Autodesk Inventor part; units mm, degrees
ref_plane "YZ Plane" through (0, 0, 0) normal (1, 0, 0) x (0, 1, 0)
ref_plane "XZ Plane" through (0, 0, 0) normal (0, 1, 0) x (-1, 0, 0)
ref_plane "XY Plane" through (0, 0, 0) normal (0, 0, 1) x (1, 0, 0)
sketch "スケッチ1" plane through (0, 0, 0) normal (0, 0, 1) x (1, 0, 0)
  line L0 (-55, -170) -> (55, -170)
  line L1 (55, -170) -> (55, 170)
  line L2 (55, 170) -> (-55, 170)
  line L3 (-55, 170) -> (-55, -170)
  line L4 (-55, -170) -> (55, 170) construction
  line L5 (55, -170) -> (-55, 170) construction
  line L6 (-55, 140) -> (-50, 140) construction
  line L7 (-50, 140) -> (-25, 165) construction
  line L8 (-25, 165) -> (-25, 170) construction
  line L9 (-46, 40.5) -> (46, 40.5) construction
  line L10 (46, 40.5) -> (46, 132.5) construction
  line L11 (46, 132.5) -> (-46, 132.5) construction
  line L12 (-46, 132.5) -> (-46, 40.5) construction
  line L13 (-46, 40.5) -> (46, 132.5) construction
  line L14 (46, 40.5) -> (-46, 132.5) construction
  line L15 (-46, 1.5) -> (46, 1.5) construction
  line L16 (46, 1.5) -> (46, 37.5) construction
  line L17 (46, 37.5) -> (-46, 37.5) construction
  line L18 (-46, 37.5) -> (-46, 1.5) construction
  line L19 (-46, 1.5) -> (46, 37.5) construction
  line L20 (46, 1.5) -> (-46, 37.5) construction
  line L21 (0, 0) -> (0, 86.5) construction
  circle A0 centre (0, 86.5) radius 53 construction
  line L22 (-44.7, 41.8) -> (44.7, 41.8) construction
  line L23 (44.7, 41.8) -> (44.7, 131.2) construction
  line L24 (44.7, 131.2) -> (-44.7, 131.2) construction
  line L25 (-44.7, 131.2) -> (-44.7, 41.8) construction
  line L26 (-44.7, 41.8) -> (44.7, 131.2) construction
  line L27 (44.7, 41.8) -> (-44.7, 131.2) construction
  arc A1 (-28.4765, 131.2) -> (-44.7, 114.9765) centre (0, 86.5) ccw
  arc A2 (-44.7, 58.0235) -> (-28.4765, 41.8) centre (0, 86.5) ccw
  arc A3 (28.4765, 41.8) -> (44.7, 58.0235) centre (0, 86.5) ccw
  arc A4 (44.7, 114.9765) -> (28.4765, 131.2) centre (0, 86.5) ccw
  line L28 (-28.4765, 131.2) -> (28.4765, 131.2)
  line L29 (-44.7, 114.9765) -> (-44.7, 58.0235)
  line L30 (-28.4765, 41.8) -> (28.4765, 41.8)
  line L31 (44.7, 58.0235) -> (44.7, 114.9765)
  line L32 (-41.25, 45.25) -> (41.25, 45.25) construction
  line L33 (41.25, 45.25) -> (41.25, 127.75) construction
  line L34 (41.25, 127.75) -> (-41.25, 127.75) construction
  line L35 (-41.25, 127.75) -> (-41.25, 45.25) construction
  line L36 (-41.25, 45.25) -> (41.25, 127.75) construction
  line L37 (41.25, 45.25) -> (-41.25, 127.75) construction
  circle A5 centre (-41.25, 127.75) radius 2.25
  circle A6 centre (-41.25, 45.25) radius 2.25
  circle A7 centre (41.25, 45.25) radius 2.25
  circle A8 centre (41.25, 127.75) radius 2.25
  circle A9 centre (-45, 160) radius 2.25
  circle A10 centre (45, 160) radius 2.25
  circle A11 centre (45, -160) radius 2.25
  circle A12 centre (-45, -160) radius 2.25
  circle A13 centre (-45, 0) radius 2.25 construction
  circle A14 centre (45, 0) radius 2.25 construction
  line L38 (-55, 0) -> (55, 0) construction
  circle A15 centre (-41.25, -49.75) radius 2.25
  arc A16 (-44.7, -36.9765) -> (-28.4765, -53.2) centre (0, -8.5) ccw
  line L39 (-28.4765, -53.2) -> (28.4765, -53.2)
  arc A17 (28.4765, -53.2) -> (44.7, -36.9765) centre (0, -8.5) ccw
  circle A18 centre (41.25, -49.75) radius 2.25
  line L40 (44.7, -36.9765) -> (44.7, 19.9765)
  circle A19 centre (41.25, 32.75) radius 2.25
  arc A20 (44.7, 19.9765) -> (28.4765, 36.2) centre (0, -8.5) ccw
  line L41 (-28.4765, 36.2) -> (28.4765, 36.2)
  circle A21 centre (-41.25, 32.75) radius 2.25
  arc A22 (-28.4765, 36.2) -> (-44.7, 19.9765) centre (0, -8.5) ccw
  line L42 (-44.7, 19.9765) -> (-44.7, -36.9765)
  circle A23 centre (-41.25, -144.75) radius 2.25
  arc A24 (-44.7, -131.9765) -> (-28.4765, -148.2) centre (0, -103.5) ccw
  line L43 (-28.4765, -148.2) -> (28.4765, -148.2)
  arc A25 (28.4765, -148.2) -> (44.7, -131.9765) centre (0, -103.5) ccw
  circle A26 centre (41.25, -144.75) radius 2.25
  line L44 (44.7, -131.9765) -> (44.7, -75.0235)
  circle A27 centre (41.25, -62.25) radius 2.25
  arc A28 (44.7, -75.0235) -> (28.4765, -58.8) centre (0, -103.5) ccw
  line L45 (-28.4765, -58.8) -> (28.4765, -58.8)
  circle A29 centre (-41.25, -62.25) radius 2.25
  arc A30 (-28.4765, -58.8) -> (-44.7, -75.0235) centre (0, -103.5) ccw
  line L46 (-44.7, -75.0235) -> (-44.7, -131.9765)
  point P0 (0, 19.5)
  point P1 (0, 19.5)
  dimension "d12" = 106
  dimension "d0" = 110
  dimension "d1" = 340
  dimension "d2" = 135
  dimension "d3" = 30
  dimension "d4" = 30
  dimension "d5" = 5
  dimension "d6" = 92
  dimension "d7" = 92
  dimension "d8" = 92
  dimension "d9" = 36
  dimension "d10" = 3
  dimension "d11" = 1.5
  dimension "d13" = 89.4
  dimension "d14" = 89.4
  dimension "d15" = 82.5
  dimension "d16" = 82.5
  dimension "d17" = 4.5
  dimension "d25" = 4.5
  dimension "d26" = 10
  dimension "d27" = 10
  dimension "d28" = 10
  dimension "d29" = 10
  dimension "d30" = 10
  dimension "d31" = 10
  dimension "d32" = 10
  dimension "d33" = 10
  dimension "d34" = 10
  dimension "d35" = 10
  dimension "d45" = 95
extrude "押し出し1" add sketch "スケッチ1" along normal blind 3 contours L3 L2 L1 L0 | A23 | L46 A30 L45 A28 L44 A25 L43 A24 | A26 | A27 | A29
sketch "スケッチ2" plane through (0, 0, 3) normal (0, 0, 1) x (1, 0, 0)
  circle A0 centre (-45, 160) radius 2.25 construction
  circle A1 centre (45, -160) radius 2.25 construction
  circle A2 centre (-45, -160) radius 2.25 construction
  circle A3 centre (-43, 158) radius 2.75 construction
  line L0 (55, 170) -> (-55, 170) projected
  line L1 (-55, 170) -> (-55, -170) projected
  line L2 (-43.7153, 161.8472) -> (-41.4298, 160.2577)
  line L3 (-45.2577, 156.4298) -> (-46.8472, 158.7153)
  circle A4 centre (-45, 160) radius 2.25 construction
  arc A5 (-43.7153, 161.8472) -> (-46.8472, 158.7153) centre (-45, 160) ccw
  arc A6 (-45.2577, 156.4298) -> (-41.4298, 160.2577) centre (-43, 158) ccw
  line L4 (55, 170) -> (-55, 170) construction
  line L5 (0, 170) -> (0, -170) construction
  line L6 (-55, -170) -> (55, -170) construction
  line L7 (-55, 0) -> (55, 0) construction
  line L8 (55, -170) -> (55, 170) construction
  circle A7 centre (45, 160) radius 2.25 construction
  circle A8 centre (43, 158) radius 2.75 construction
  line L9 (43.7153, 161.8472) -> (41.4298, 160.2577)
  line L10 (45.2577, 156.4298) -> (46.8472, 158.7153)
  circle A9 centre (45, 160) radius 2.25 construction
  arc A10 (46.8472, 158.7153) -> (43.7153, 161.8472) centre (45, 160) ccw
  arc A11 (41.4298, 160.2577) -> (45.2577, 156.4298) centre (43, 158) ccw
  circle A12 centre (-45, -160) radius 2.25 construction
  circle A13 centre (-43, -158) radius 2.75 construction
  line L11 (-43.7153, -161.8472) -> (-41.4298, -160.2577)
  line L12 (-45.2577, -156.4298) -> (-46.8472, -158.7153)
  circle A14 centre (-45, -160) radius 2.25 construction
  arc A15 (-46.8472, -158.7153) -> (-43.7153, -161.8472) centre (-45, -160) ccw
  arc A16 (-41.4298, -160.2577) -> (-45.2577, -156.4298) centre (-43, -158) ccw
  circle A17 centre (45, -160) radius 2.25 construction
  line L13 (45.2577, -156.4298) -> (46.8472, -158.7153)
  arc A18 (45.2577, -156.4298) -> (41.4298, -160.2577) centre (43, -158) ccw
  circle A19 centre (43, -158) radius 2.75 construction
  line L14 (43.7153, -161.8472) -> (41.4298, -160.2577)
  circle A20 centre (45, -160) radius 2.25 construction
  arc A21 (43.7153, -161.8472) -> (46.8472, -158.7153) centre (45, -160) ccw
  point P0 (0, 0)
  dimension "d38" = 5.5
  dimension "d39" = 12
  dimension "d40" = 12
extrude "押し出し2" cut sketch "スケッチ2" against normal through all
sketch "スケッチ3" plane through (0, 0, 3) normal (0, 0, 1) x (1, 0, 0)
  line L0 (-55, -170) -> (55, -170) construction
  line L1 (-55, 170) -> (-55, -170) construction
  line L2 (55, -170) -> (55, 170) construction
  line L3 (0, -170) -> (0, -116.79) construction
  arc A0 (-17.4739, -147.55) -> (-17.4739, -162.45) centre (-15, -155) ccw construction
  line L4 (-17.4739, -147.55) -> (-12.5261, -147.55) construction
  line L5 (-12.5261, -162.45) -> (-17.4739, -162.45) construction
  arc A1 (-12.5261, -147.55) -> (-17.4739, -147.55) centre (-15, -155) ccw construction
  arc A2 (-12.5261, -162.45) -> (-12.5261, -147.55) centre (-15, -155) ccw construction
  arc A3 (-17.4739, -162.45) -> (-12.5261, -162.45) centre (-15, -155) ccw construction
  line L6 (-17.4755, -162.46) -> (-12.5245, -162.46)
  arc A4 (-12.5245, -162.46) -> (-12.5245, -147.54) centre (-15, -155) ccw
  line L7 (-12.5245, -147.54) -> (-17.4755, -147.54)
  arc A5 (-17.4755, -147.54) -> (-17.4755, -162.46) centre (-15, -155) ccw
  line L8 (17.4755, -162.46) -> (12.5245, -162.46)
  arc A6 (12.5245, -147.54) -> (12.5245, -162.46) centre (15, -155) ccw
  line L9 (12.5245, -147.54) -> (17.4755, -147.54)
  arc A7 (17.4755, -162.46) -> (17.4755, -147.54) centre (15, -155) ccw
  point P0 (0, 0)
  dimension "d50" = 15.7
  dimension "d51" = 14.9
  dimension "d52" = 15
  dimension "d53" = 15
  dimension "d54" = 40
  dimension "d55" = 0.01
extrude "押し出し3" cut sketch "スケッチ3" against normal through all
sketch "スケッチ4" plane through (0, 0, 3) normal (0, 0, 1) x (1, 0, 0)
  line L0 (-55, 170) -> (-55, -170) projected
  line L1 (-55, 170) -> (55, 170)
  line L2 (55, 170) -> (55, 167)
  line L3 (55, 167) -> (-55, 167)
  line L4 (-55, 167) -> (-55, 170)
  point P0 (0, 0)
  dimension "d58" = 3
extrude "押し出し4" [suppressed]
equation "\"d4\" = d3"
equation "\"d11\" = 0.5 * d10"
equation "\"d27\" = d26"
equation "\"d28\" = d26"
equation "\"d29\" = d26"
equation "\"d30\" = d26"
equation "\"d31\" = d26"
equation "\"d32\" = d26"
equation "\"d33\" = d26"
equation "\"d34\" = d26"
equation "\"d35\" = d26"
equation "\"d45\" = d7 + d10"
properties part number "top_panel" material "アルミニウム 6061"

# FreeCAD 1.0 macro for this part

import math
import FreeCAD as App
import Part
import Sketcher
from FreeCAD import Vector


def add_polygon(sketch, points):
    """Adds a closed chain of lines whose ends are joined by coincident constraints."""
    first, n = sketch.GeometryCount, len(points)
    for a, b in zip(points, points[1:] + points[:1]):
        sketch.addGeometry(Part.LineSegment(App.Vector(*a, 0), App.Vector(*b, 0)), False)
    for i in range(n):
        sketch.addConstraint(Sketcher.Constraint("Coincident", first + i, 2, first + (i + 1) % n, 1))

doc = App.newDocument("Part")
body = doc.addObject("PartDesign::Body", "Body")

# Sketch on XY plane
sketch1 = body.newObject("Sketcher::SketchObject", "Sketch")
sketch1.AttachmentSupport = (doc.getObject("XY_Plane"), [""])
sketch1.MapMode = "FlatFace"
add_polygon(sketch1, [(-55, 170), (-55, -170), (55, -170), (55, 170)])  # lines 0-3
sketch1.addGeometry(Part.Circle(Vector(-45, -160, 0), Vector(0, 0, 1), 2.25), False)  # 4
sketch1.addGeometry(Part.Circle(Vector(-41.25, -49.75, 0), Vector(0, 0, 1), 2.25), False)  # 5
sketch1.addGeometry(Part.Circle(Vector(45, -160, 0), Vector(0, 0, 1), 2.25), False)  # 6
sketch1.addGeometry(Part.ArcOfCircle(Part.Circle(Vector(0, -8.5, 0), Vector(0, 0, 1), 53.00001), math.radians(-147.500493), math.radians(-122.499507)), False)  # 7
sketch1.addGeometry(Part.LineSegment(Vector(-44.7, -36.9765, 0), Vector(-44.7, 19.9765, 0)), False)  # 8
sketch1.addGeometry(Part.ArcOfCircle(Part.Circle(Vector(0, -8.5, 0), Vector(0, 0, 1), 53.00001), math.radians(122.499507), math.radians(147.500493)), False)  # 9
sketch1.addGeometry(Part.LineSegment(Vector(-28.4765, 36.2, 0), Vector(28.4765, 36.2, 0)), False)  # 10
sketch1.addGeometry(Part.ArcOfCircle(Part.Circle(Vector(0, -8.5, 0), Vector(0, 0, 1), 53.00001), math.radians(32.499507), math.radians(57.500493)), False)  # 11
sketch1.addGeometry(Part.LineSegment(Vector(44.7, 19.9765, 0), Vector(44.7, -36.9765, 0)), False)  # 12
sketch1.addGeometry(Part.ArcOfCircle(Part.Circle(Vector(0, -8.5, 0), Vector(0, 0, 1), 53.00001), math.radians(-57.500493), math.radians(-32.499507)), False)  # 13
sketch1.addGeometry(Part.LineSegment(Vector(28.4765, -53.2, 0), Vector(-28.4765, -53.2, 0)), False)  # 14
sketch1.addGeometry(Part.Circle(Vector(41.25, -49.75, 0), Vector(0, 0, 1), 2.25), False)  # 15
sketch1.addGeometry(Part.Circle(Vector(-41.25, 32.75, 0), Vector(0, 0, 1), 2.25), False)  # 16
sketch1.addGeometry(Part.Circle(Vector(-41.25, 45.25, 0), Vector(0, 0, 1), 2.25), False)  # 17
sketch1.addGeometry(Part.Circle(Vector(-45, 160, 0), Vector(0, 0, 1), 2.25), False)  # 18
sketch1.addGeometry(Part.Circle(Vector(-41.25, 127.75, 0), Vector(0, 0, 1), 2.25), False)  # 19
sketch1.addGeometry(Part.Circle(Vector(41.25, 32.75, 0), Vector(0, 0, 1), 2.25), False)  # 20
sketch1.addGeometry(Part.Circle(Vector(41.25, 45.25, 0), Vector(0, 0, 1), 2.25), False)  # 21
sketch1.addGeometry(Part.ArcOfCircle(Part.Circle(Vector(0, 86.5, 0), Vector(0, 0, 1), 53.00001), math.radians(122.499507), math.radians(147.500493)), False)  # 22
sketch1.addGeometry(Part.LineSegment(Vector(-28.4765, 131.2, 0), Vector(28.4765, 131.2, 0)), False)  # 23
sketch1.addGeometry(Part.ArcOfCircle(Part.Circle(Vector(0, 86.5, 0), Vector(0, 0, 1), 53.00001), math.radians(32.499507), math.radians(57.500493)), False)  # 24
sketch1.addGeometry(Part.LineSegment(Vector(44.7, 114.9765, 0), Vector(44.7, 58.0235, 0)), False)  # 25
sketch1.addGeometry(Part.ArcOfCircle(Part.Circle(Vector(0, 86.5, 0), Vector(0, 0, 1), 53.00001), math.radians(-57.500493), math.radians(-32.499507)), False)  # 26
sketch1.addGeometry(Part.LineSegment(Vector(28.4765, 41.8, 0), Vector(-28.4765, 41.8, 0)), False)  # 27
sketch1.addGeometry(Part.ArcOfCircle(Part.Circle(Vector(0, 86.5, 0), Vector(0, 0, 1), 53.00001), math.radians(-147.500493), math.radians(-122.499507)), False)  # 28
sketch1.addGeometry(Part.LineSegment(Vector(-44.7, 58.0235, 0), Vector(-44.7, 114.9765, 0)), False)  # 29
sketch1.addGeometry(Part.Circle(Vector(41.25, 127.75, 0), Vector(0, 0, 1), 2.25), False)  # 30
sketch1.addGeometry(Part.Circle(Vector(45, 160, 0), Vector(0, 0, 1), 2.25), False)  # 31
sketch1.addConstraint(Sketcher.Constraint("Coincident", 7, 1, 8, 1))
sketch1.addConstraint(Sketcher.Constraint("Coincident", 8, 2, 9, 2))
sketch1.addConstraint(Sketcher.Constraint("Coincident", 9, 1, 10, 1))
sketch1.addConstraint(Sketcher.Constraint("Coincident", 10, 2, 11, 2))
sketch1.addConstraint(Sketcher.Constraint("Coincident", 11, 1, 12, 1))
sketch1.addConstraint(Sketcher.Constraint("Coincident", 12, 2, 13, 2))
sketch1.addConstraint(Sketcher.Constraint("Coincident", 13, 1, 14, 1))
sketch1.addConstraint(Sketcher.Constraint("Coincident", 14, 2, 7, 2))
sketch1.addConstraint(Sketcher.Constraint("Coincident", 22, 1, 23, 1))
sketch1.addConstraint(Sketcher.Constraint("Coincident", 23, 2, 24, 2))
sketch1.addConstraint(Sketcher.Constraint("Coincident", 24, 1, 25, 1))
sketch1.addConstraint(Sketcher.Constraint("Coincident", 25, 2, 26, 2))
sketch1.addConstraint(Sketcher.Constraint("Coincident", 26, 1, 27, 1))
sketch1.addConstraint(Sketcher.Constraint("Coincident", 27, 2, 28, 2))
sketch1.addConstraint(Sketcher.Constraint("Coincident", 28, 1, 29, 1))
sketch1.addConstraint(Sketcher.Constraint("Coincident", 29, 2, 22, 2))
sketch1.addConstraint(Sketcher.Constraint("Vertical", 0))
sketch1.addConstraint(Sketcher.Constraint("Horizontal", 1))
sketch1.addConstraint(Sketcher.Constraint("Vertical", 2))
sketch1.addConstraint(Sketcher.Constraint("Horizontal", 3))
sketch1.addConstraint(Sketcher.Constraint("Vertical", 8))
sketch1.addConstraint(Sketcher.Constraint("Horizontal", 10))
sketch1.addConstraint(Sketcher.Constraint("Vertical", 12))
sketch1.addConstraint(Sketcher.Constraint("Horizontal", 14))
sketch1.addConstraint(Sketcher.Constraint("Horizontal", 23))
sketch1.addConstraint(Sketcher.Constraint("Vertical", 25))
sketch1.addConstraint(Sketcher.Constraint("Horizontal", 27))
sketch1.addConstraint(Sketcher.Constraint("Vertical", 29))
sketch1.addConstraint(Sketcher.Constraint("Coincident", 9, 3, 7, 3))
sketch1.addConstraint(Sketcher.Constraint("Coincident", 11, 3, 7, 3))
sketch1.addConstraint(Sketcher.Constraint("Coincident", 13, 3, 7, 3))
sketch1.addConstraint(Sketcher.Constraint("Coincident", 24, 3, 22, 3))
sketch1.addConstraint(Sketcher.Constraint("Coincident", 26, 3, 22, 3))
sketch1.addConstraint(Sketcher.Constraint("Coincident", 28, 3, 22, 3))
sketch1.addConstraint(Sketcher.Constraint("Equal", 4, 5))
sketch1.addConstraint(Sketcher.Constraint("Equal", 5, 6))
sketch1.addConstraint(Sketcher.Constraint("Equal", 7, 9))
sketch1.addConstraint(Sketcher.Constraint("Equal", 9, 11))
sketch1.addConstraint(Sketcher.Constraint("Equal", 11, 13))
sketch1.addConstraint(Sketcher.Constraint("Equal", 6, 15))
sketch1.addConstraint(Sketcher.Constraint("Equal", 15, 16))
sketch1.addConstraint(Sketcher.Constraint("Equal", 16, 17))
sketch1.addConstraint(Sketcher.Constraint("Equal", 17, 18))
sketch1.addConstraint(Sketcher.Constraint("Equal", 18, 19))
sketch1.addConstraint(Sketcher.Constraint("Equal", 19, 20))
sketch1.addConstraint(Sketcher.Constraint("Equal", 20, 21))
sketch1.addConstraint(Sketcher.Constraint("Equal", 13, 22))
sketch1.addConstraint(Sketcher.Constraint("Equal", 22, 24))
sketch1.addConstraint(Sketcher.Constraint("Equal", 24, 26))
sketch1.addConstraint(Sketcher.Constraint("Equal", 26, 28))
sketch1.addConstraint(Sketcher.Constraint("Equal", 21, 30))
sketch1.addConstraint(Sketcher.Constraint("Equal", 30, 31))
sketch1.addConstraint(Sketcher.Constraint("Symmetric", 6, 3, 18, 3, -1, 1))
sketch1.addConstraint(Sketcher.Constraint("Symmetric", 4, 3, 31, 3, -1, 1))
sketch1.addConstraint(Sketcher.Constraint("Symmetric", 0, 2, 2, 2, -1, 1))
sketch1.addConstraint(Sketcher.Constraint("Symmetric", 4, 3, 6, 3, -2))
sketch1.addConstraint(Sketcher.Constraint("Symmetric", 5, 3, 15, 3, -2))
sketch1.addConstraint(Sketcher.Constraint("Symmetric", 16, 3, 20, 3, -2))
sketch1.addConstraint(Sketcher.Constraint("Symmetric", 17, 3, 21, 3, -2))
sketch1.addConstraint(Sketcher.Constraint("Symmetric", 19, 3, 30, 3, -2))
sketch1.addConstraint(Sketcher.Constraint("Symmetric", 8, 2, 11, 1, -2))
sketch1.addConstraint(Sketcher.Constraint("Symmetric", 25, 2, 28, 1, -2))
sketch1.addConstraint(Sketcher.Constraint("Vertical", 5, 3, 16, 3))
sketch1.addConstraint(Sketcher.Constraint("Vertical", 16, 3, 17, 3))
sketch1.addConstraint(Sketcher.Constraint("Vertical", 17, 3, 19, 3))
sketch1.addConstraint(Sketcher.Constraint("Vertical", 10, 2, 13, 1))
sketch1.addConstraint(Sketcher.Constraint("Vertical", 14, 2, 22, 1))
sketch1.addConstraint(Sketcher.Constraint("Vertical", 12, 2, 24, 1))
sketch1.addConstraint(Sketcher.Constraint("Vertical", 23, 2, 26, 1))
sketch1.addConstraint(Sketcher.Constraint("Equal", 27, 8))
sketch1.addConstraint(Sketcher.Constraint("Radius", 7, 53.0))
sketch1.addConstraint(Sketcher.Constraint("Diameter", 4, 4.5))
sketch1.addConstraint(Sketcher.Constraint("DistanceX", 1, 1, 1, 2, 110.0))
sketch1.addConstraint(Sketcher.Constraint("DistanceY", 0, 2, 0, 1, 340.0))
sketch1.addConstraint(Sketcher.Constraint("DistanceY", 16, 3, 19, 3, 95.0))
sketch1.addConstraint(Sketcher.Constraint("DistanceX", 0, 2, 4, 3, 10.0))
sketch1.addConstraint(Sketcher.Constraint("DistanceY", 0, 2, 4, 3, 10.0))
sketch1.addConstraint(Sketcher.Constraint("DistanceX", 5, 3, 15, 3, 82.5))
sketch1.addConstraint(Sketcher.Constraint("DistanceY", 5, 3, 16, 3, 82.5))
sketch1.addConstraint(Sketcher.Constraint("DistanceY", 17, 3, 19, 3, 82.5))
sketch1.addConstraint(Sketcher.Constraint("DistanceY", 7, 3, -1, 1, 8.5))
sketch1.addConstraint(Sketcher.Constraint("DistanceY", -1, 1, 22, 3, 86.5))
sketch1.addConstraint(Sketcher.Constraint("DistanceX", 7, 1, -1, 1, 44.7))
sketch1.addConstraint(Sketcher.Constraint("DistanceY", 5, 3, -1, 1, 49.75))
pad1 = body.newObject("PartDesign::Pad", "Pad")
pad1.Profile = sketch1
pad1.Length = 3

# Sketch on XY plane
sketch2 = body.newObject("Sketcher::SketchObject", "Sketch001")
sketch2.AttachmentSupport = (doc.getObject("XY_Plane"), [""])
sketch2.MapMode = "FlatFace"
sketch2.AttachmentOffset = App.Placement(Vector(0, 0, 3), App.Rotation())
sketch2.addGeometry(Part.LineSegment(Vector(-41.4298, 160.2577, 0), Vector(-43.7153, 161.8472, 0)), False)
sketch2.addGeometry(Part.ArcOfCircle(Part.Circle(Vector(-45, 160, 0), Vector(0, 0, 1), 2.250023), math.radians(55.181964), math.radians(214.818036)), False)
sketch2.addGeometry(Part.LineSegment(Vector(-46.8472, 158.7153, 0), Vector(-45.2577, 156.4298, 0)), False)
sketch2.addGeometry(Part.ArcOfCircle(Part.Circle(Vector(-43, 158, 0), Vector(0, 0, 1), 2.750043), math.radians(-145.181906), math.radians(55.181906)), False)
sketch2.addGeometry(Part.ArcOfCircle(Part.Circle(Vector(45, 160, 0), Vector(0, 0, 1), 2.250023), math.radians(-34.818036), math.radians(124.818036)), False)
sketch2.addGeometry(Part.LineSegment(Vector(43.7153, 161.8472, 0), Vector(41.4298, 160.2577, 0)), False)
sketch2.addGeometry(Part.ArcOfCircle(Part.Circle(Vector(43, 158, 0), Vector(0, 0, 1), 2.750043), math.radians(124.818094), math.radians(325.181906)), False)
sketch2.addGeometry(Part.LineSegment(Vector(45.2577, 156.4298, 0), Vector(46.8472, 158.7153, 0)), False)
sketch2.addGeometry(Part.ArcOfCircle(Part.Circle(Vector(-45, -160, 0), Vector(0, 0, 1), 2.250023), math.radians(145.181964), math.radians(304.818036)), False)
sketch2.addGeometry(Part.LineSegment(Vector(-43.7153, -161.8472, 0), Vector(-41.4298, -160.2577, 0)), False)
sketch2.addGeometry(Part.ArcOfCircle(Part.Circle(Vector(-43, -158, 0), Vector(0, 0, 1), 2.750043), math.radians(-55.181906), math.radians(145.181906)), False)
sketch2.addGeometry(Part.LineSegment(Vector(-45.2577, -156.4298, 0), Vector(-46.8472, -158.7153, 0)), False)
sketch2.addGeometry(Part.LineSegment(Vector(46.8472, -158.7153, 0), Vector(45.2577, -156.4298, 0)), False)
sketch2.addGeometry(Part.ArcOfCircle(Part.Circle(Vector(43, -158, 0), Vector(0, 0, 1), 2.750043), math.radians(34.818094), math.radians(235.181906)), False)
sketch2.addGeometry(Part.LineSegment(Vector(41.4298, -160.2577, 0), Vector(43.7153, -161.8472, 0)), False)
sketch2.addGeometry(Part.ArcOfCircle(Part.Circle(Vector(45, -160, 0), Vector(0, 0, 1), 2.250023), math.radians(-124.818036), math.radians(34.818036)), False)
sketch2.addConstraint(Sketcher.Constraint("Tangent", 0, 2, 1, 1))
sketch2.addConstraint(Sketcher.Constraint("Tangent", 1, 2, 2, 1))
sketch2.addConstraint(Sketcher.Constraint("Tangent", 2, 2, 3, 1))
sketch2.addConstraint(Sketcher.Constraint("Tangent", 3, 2, 0, 1))
sketch2.addConstraint(Sketcher.Constraint("Tangent", 4, 2, 5, 1))
sketch2.addConstraint(Sketcher.Constraint("Tangent", 5, 2, 6, 1))
sketch2.addConstraint(Sketcher.Constraint("Tangent", 6, 2, 7, 1))
sketch2.addConstraint(Sketcher.Constraint("Tangent", 7, 2, 4, 1))
sketch2.addConstraint(Sketcher.Constraint("Tangent", 8, 2, 9, 1))
sketch2.addConstraint(Sketcher.Constraint("Tangent", 9, 2, 10, 1))
sketch2.addConstraint(Sketcher.Constraint("Tangent", 10, 2, 11, 1))
sketch2.addConstraint(Sketcher.Constraint("Tangent", 11, 2, 8, 1))
sketch2.addConstraint(Sketcher.Constraint("Tangent", 12, 2, 13, 1))
sketch2.addConstraint(Sketcher.Constraint("Tangent", 13, 2, 14, 1))
sketch2.addConstraint(Sketcher.Constraint("Tangent", 14, 2, 15, 1))
sketch2.addConstraint(Sketcher.Constraint("Tangent", 15, 2, 12, 1))
sketch2.addConstraint(Sketcher.Constraint("Equal", 1, 4))
sketch2.addConstraint(Sketcher.Constraint("Equal", 3, 6))
sketch2.addConstraint(Sketcher.Constraint("Equal", 4, 8))
sketch2.addConstraint(Sketcher.Constraint("Equal", 6, 10))
sketch2.addConstraint(Sketcher.Constraint("Equal", 10, 13))
sketch2.addConstraint(Sketcher.Constraint("Equal", 8, 15))
sketch2.addConstraint(Sketcher.Constraint("Symmetric", 4, 3, 8, 3, -1, 1))
sketch2.addConstraint(Sketcher.Constraint("Symmetric", 6, 3, 10, 3, -1, 1))
sketch2.addConstraint(Sketcher.Constraint("Symmetric", 3, 3, 13, 3, -1, 1))
sketch2.addConstraint(Sketcher.Constraint("Symmetric", 1, 3, 15, 3, -1, 1))
sketch2.addConstraint(Sketcher.Constraint("Symmetric", 1, 3, 4, 3, -2))
sketch2.addConstraint(Sketcher.Constraint("Symmetric", 3, 3, 6, 3, -2))
sketch2.addConstraint(Sketcher.Constraint("Perpendicular", 2, 5))
sketch2.addConstraint(Sketcher.Constraint("Radius", 3, 2.75))
sketch2.addConstraint(Sketcher.Constraint("Radius", 1, 2.25))
sketch2.addConstraint(Sketcher.Constraint("DistanceX", 1, 3, -1, 1, 45.0))
sketch2.addConstraint(Sketcher.Constraint("DistanceY", -1, 1, 1, 3, 160.0))
sketch2.addConstraint(Sketcher.Constraint("DistanceX", 3, 3, -1, 1, 43.0))
pocket1 = body.newObject("PartDesign::Pocket", "Pocket")
pocket1.Profile = sketch2
pocket1.Type = "ThroughAll"

# Sketch on XY plane
sketch3 = body.newObject("Sketcher::SketchObject", "Sketch002")
sketch3.AttachmentSupport = (doc.getObject("XY_Plane"), [""])
sketch3.MapMode = "FlatFace"
sketch3.AttachmentOffset = App.Placement(Vector(0, 0, 3), App.Rotation())
sketch3.addGeometry(Part.ArcOfCircle(Part.Circle(Vector(-15, -155, 0), Vector(0, 0, 1), 7.860006), math.radians(108.357726), math.radians(251.642274)), False)
sketch3.addGeometry(Part.LineSegment(Vector(-17.4755, -162.46, 0), Vector(-12.5245, -162.46, 0)), False)
sketch3.addGeometry(Part.ArcOfCircle(Part.Circle(Vector(-15, -155, 0), Vector(0, 0, 1), 7.860006), math.radians(-71.642274), math.radians(71.642274)), False)
sketch3.addGeometry(Part.LineSegment(Vector(-12.5245, -147.54, 0), Vector(-17.4755, -147.54, 0)), False)
sketch3.addGeometry(Part.LineSegment(Vector(12.5245, -162.46, 0), Vector(17.4755, -162.46, 0)), False)
sketch3.addGeometry(Part.ArcOfCircle(Part.Circle(Vector(15, -155, 0), Vector(0, 0, 1), 7.860006), math.radians(-71.642274), math.radians(71.642274)), False)
sketch3.addGeometry(Part.LineSegment(Vector(17.4755, -147.54, 0), Vector(12.5245, -147.54, 0)), False)
sketch3.addGeometry(Part.ArcOfCircle(Part.Circle(Vector(15, -155, 0), Vector(0, 0, 1), 7.860006), math.radians(108.357726), math.radians(251.642274)), False)
sketch3.addConstraint(Sketcher.Constraint("Coincident", 0, 2, 1, 1))
sketch3.addConstraint(Sketcher.Constraint("Coincident", 1, 2, 2, 1))
sketch3.addConstraint(Sketcher.Constraint("Coincident", 2, 2, 3, 1))
sketch3.addConstraint(Sketcher.Constraint("Coincident", 3, 2, 0, 1))
sketch3.addConstraint(Sketcher.Constraint("Coincident", 4, 2, 5, 1))
sketch3.addConstraint(Sketcher.Constraint("Coincident", 5, 2, 6, 1))
sketch3.addConstraint(Sketcher.Constraint("Coincident", 6, 2, 7, 1))
sketch3.addConstraint(Sketcher.Constraint("Coincident", 7, 2, 4, 1))
sketch3.addConstraint(Sketcher.Constraint("Horizontal", 1))
sketch3.addConstraint(Sketcher.Constraint("Horizontal", 3))
sketch3.addConstraint(Sketcher.Constraint("Horizontal", 4))
sketch3.addConstraint(Sketcher.Constraint("Horizontal", 6))
sketch3.addConstraint(Sketcher.Constraint("Coincident", 2, 3, 0, 3))
sketch3.addConstraint(Sketcher.Constraint("Coincident", 7, 3, 5, 3))
sketch3.addConstraint(Sketcher.Constraint("Equal", 0, 2))
sketch3.addConstraint(Sketcher.Constraint("Equal", 2, 5))
sketch3.addConstraint(Sketcher.Constraint("Equal", 5, 7))
sketch3.addConstraint(Sketcher.Constraint("Symmetric", 0, 3, 5, 3, -2))
sketch3.addConstraint(Sketcher.Constraint("Horizontal", 1, 2, 4, 2))
sketch3.addConstraint(Sketcher.Constraint("Horizontal", 3, 2, 5, 2))
sketch3.addConstraint(Sketcher.Constraint("Vertical", 1, 2, 2, 2))
sketch3.addConstraint(Sketcher.Constraint("DistanceX", 0, 3, -1, 1, 15.0))
sketch3.addConstraint(Sketcher.Constraint("Radius", 0, 7.86))
sketch3.addConstraint(Sketcher.Constraint("DistanceY", 0, 3, -1, 1, 155.0))
sketch3.addConstraint(Sketcher.Constraint("DistanceX", 1, 1, 1, 2, 4.951))
pocket2 = body.newObject("PartDesign::Pocket", "Pocket001")
pocket2.Profile = sketch3
pocket2.Type = "ThroughAll"

doc.recompute()
